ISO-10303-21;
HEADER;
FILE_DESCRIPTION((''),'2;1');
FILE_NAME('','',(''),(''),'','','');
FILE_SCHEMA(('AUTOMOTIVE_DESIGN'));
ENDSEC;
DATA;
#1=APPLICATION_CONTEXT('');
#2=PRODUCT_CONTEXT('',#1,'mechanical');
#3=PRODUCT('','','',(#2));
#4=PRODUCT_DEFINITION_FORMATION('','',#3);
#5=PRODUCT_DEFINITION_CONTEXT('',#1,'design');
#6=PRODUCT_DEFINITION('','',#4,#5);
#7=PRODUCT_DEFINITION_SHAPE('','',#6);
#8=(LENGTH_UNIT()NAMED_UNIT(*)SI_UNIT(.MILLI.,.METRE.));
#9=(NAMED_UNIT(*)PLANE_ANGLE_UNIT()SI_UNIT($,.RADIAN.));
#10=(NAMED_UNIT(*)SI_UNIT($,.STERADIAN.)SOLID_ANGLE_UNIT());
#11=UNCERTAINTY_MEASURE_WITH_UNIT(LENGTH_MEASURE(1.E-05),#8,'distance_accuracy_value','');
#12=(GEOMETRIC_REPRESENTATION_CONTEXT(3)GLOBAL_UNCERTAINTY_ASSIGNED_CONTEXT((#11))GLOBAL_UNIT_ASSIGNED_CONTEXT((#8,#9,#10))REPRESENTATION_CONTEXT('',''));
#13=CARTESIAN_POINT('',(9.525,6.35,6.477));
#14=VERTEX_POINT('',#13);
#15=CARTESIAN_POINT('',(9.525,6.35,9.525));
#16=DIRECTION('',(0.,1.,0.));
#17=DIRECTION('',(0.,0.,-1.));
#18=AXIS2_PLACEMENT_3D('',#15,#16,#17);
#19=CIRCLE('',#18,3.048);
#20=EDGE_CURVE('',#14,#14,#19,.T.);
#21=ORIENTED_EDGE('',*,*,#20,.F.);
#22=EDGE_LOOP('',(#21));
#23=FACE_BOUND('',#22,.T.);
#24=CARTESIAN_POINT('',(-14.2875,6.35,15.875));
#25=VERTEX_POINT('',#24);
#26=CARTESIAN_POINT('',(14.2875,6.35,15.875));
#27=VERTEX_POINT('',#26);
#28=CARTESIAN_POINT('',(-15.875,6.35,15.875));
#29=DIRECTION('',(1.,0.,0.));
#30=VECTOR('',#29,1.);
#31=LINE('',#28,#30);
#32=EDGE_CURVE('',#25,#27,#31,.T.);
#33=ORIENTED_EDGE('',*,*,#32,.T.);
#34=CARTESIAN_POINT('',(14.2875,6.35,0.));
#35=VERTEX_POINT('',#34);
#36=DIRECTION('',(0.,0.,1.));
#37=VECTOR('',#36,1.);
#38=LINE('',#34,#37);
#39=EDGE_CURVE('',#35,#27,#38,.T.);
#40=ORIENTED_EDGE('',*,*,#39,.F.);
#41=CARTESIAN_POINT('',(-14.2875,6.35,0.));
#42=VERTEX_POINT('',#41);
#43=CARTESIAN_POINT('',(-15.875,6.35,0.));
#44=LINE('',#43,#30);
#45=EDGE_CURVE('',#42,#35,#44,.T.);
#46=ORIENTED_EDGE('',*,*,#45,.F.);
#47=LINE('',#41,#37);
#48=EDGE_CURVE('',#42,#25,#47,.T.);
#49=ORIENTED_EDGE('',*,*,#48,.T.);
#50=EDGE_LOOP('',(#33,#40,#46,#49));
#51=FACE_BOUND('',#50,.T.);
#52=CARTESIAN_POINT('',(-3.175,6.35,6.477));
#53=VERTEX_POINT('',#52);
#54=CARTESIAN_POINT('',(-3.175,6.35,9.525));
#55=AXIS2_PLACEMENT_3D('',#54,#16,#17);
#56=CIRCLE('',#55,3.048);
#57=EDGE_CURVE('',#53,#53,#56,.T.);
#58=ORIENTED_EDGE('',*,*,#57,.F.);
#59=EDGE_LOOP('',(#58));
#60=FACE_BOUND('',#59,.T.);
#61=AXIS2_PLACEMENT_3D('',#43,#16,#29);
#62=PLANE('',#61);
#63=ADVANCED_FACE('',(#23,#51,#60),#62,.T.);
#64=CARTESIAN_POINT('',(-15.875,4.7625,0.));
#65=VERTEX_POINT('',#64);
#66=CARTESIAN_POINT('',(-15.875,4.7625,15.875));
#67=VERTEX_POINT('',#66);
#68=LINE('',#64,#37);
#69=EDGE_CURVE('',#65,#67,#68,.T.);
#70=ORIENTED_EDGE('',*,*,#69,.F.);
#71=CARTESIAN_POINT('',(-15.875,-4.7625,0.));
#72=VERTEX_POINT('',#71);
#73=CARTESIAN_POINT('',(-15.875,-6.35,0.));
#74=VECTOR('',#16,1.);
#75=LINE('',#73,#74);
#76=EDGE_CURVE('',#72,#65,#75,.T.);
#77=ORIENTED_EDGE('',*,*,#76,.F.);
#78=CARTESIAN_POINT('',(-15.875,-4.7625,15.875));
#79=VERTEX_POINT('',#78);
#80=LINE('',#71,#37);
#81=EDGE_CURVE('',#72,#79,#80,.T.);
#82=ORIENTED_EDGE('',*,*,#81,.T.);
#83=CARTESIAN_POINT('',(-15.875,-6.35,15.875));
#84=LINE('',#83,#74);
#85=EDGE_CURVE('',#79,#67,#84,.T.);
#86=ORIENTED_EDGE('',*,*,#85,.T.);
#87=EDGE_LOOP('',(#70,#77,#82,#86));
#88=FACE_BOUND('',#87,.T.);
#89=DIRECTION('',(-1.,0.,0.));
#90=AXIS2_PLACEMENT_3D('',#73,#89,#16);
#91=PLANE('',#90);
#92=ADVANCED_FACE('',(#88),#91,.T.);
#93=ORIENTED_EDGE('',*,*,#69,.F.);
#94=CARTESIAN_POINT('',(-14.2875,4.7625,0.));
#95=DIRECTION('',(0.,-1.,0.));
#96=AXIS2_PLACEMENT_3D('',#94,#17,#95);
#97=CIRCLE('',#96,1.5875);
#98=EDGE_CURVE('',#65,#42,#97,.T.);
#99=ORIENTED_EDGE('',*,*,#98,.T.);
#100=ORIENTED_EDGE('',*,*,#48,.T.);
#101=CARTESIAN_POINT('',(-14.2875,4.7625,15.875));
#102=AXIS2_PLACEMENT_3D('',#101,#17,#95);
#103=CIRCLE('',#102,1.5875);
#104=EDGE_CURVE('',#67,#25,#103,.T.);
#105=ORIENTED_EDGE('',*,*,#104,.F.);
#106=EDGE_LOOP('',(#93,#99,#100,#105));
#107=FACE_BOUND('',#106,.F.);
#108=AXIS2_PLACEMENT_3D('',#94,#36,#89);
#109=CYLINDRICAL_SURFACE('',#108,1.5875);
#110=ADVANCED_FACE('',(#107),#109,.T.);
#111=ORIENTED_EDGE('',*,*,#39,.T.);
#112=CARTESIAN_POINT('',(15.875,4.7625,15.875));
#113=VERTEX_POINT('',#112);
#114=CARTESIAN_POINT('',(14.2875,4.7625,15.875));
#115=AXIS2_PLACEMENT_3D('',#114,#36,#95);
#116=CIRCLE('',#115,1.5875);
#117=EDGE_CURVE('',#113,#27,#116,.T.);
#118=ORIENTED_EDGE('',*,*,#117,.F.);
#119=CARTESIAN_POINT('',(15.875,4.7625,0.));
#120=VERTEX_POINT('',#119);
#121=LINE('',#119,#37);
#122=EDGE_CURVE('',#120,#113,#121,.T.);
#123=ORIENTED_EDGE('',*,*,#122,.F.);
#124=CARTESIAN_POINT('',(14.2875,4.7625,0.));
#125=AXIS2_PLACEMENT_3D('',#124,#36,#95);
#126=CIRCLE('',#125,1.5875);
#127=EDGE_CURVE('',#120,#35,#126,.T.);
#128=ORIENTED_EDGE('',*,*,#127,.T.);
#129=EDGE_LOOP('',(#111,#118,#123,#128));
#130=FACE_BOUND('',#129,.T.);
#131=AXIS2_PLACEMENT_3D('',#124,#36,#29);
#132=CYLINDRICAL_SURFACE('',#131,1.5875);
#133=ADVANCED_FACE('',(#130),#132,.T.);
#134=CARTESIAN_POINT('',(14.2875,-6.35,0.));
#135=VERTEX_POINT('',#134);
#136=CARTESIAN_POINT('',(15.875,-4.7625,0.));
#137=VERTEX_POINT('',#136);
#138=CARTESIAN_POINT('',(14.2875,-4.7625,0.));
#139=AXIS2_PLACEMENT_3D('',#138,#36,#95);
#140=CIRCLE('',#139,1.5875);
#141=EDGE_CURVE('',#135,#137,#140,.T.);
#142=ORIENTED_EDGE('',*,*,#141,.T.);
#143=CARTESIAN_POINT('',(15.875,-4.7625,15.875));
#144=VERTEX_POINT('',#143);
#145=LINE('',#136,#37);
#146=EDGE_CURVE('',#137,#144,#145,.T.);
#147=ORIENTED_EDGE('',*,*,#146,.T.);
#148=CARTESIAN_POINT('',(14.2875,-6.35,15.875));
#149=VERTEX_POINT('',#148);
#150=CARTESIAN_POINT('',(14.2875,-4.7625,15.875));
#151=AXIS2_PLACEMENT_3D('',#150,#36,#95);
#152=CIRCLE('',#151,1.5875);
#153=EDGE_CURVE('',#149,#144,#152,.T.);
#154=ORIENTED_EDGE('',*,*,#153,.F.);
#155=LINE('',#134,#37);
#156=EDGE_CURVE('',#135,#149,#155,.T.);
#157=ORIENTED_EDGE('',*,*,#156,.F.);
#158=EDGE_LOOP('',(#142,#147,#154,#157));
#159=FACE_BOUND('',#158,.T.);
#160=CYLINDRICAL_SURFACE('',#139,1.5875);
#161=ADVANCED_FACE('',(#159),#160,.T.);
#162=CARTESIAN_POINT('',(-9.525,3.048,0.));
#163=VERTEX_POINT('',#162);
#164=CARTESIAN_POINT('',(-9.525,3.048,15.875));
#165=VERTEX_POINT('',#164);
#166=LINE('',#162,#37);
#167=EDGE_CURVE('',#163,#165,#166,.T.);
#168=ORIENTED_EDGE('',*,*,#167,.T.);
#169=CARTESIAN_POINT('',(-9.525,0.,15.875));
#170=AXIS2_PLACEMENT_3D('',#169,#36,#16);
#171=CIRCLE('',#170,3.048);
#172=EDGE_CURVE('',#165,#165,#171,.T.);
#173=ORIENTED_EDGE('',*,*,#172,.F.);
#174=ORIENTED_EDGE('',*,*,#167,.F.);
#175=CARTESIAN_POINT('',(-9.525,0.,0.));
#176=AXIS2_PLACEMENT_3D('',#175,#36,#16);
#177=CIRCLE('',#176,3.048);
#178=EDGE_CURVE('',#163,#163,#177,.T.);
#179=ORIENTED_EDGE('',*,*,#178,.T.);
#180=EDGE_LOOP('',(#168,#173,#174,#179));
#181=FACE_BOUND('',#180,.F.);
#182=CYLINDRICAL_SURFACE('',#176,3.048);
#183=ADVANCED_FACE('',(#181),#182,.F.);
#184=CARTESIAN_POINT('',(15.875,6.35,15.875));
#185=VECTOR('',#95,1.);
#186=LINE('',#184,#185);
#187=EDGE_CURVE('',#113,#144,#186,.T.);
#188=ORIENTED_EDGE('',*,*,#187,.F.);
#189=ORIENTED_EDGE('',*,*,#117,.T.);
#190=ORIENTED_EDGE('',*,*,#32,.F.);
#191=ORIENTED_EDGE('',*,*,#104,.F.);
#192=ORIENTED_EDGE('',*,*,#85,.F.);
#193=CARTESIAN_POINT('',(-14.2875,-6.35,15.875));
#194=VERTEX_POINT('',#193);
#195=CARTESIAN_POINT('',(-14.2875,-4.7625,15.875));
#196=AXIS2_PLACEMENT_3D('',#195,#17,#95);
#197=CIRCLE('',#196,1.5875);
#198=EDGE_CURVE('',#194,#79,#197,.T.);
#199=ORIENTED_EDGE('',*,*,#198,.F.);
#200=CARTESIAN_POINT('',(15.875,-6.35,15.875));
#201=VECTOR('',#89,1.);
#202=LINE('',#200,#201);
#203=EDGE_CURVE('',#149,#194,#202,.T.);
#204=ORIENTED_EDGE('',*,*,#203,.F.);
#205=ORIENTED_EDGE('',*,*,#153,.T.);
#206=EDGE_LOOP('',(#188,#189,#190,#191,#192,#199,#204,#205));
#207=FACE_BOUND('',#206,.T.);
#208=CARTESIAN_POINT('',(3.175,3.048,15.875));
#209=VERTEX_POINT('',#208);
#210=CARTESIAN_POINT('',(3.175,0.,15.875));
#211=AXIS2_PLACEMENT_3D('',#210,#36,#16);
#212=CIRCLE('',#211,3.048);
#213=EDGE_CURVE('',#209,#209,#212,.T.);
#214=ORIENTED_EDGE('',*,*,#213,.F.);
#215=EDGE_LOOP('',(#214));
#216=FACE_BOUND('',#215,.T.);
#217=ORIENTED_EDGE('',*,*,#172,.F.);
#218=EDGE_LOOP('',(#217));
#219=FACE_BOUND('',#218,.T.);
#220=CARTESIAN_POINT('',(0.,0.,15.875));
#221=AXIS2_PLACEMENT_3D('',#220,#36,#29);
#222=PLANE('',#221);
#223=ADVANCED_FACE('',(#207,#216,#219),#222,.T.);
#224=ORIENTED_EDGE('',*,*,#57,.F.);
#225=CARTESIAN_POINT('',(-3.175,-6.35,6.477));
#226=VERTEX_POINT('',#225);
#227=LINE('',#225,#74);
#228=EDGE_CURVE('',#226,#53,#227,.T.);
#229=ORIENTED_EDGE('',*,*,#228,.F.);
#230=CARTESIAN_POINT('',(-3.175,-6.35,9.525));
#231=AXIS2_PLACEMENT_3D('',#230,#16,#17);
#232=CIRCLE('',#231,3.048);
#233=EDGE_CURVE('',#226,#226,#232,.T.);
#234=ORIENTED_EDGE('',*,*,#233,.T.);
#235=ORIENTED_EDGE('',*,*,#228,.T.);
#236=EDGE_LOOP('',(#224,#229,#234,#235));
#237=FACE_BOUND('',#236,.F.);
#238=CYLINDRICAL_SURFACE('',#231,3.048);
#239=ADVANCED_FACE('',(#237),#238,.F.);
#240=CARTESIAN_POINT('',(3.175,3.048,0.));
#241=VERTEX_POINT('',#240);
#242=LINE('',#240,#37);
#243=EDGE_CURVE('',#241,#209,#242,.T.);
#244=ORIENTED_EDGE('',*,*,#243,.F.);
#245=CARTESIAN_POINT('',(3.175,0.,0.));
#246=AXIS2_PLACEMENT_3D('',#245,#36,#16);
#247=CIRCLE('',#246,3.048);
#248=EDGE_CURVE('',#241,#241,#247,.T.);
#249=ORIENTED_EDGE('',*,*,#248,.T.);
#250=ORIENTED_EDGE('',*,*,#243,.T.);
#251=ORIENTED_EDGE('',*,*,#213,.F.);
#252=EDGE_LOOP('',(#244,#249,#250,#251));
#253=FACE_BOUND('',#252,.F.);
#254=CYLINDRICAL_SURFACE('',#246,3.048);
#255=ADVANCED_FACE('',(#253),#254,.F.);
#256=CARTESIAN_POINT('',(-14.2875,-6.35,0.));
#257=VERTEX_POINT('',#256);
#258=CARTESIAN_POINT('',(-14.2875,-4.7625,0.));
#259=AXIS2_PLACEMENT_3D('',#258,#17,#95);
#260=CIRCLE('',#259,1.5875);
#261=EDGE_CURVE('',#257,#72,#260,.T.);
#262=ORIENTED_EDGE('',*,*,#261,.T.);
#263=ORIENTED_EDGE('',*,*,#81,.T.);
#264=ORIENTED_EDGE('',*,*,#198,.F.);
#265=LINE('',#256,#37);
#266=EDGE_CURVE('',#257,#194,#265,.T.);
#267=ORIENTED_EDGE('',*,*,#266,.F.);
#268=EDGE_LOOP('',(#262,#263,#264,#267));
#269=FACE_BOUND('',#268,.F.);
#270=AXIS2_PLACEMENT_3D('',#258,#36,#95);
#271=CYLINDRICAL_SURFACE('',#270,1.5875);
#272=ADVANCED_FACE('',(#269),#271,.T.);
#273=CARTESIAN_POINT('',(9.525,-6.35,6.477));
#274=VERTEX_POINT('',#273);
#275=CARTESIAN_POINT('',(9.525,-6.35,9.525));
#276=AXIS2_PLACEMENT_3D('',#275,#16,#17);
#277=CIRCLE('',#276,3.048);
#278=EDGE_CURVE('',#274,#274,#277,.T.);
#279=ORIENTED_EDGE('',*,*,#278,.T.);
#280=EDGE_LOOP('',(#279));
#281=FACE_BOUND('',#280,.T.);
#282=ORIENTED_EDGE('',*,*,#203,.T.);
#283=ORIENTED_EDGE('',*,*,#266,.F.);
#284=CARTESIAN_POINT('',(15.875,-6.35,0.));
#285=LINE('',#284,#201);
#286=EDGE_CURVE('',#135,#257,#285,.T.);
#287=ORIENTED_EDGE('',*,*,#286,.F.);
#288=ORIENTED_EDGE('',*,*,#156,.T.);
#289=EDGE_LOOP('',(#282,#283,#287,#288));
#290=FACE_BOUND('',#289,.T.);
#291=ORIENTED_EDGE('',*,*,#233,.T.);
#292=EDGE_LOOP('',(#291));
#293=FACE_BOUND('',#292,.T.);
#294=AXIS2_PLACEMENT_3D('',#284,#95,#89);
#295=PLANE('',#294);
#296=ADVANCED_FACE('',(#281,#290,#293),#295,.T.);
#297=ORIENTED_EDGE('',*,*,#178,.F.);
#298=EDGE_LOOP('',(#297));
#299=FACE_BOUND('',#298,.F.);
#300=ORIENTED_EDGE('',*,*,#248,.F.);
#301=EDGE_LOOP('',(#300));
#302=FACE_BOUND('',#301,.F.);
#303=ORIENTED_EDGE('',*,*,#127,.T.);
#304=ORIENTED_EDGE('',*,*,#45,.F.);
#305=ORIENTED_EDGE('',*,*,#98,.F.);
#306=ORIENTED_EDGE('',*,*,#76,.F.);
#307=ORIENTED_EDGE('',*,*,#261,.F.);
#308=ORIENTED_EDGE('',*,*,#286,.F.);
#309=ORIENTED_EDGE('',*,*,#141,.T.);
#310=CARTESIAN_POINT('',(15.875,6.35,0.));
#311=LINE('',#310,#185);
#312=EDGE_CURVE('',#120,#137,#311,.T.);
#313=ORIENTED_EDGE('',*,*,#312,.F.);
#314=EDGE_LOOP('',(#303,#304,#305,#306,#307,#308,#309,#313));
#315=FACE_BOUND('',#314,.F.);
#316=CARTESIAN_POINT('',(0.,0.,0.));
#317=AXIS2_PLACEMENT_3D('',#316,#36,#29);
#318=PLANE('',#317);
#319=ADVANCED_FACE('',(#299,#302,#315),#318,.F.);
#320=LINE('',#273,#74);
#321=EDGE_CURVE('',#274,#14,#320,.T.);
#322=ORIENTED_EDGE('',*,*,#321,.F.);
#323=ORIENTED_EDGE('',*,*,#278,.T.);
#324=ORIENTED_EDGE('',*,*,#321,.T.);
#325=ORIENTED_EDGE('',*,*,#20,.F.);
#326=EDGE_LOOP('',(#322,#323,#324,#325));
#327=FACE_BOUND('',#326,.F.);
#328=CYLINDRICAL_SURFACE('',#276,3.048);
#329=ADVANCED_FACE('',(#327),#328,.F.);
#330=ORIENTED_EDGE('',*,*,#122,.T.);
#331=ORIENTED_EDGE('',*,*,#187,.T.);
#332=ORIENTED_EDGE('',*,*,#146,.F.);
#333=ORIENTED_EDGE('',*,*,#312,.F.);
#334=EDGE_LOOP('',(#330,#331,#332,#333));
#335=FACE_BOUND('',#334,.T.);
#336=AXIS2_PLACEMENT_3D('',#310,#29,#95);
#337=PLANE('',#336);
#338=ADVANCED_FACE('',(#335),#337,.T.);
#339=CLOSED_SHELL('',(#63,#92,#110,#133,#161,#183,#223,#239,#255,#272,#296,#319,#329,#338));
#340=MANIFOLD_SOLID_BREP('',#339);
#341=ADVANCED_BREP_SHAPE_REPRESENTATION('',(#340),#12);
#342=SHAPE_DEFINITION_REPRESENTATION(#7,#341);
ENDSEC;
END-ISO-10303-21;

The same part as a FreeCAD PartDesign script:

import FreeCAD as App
import Part
import Sketcher

V = App.Vector
Q = App.Units.Quantity


def edges_at(feature, points):
    """Names of the edges that pass closest to the given points."""
    edges = feature.Shape.Edges
    near = lambda p: min(range(len(edges)), key=lambda i: edges[i].distToShape(Part.Vertex(*p))[0])
    return sorted({f"Edge{near(p) + 1}" for p in points})

doc = App.newDocument("Part")
params = doc.addObject("Spreadsheet::Sheet", "Params")
for row, (alias, value) in enumerate([
    ("sketch1_height", "0.5 in"),
    ("sketch1_width", "1.25 in"),
    ("pad1_length", "0.625 in"),
    ("sketch2_diameter", "0.24 in"),
    ("hole_diameter", "0.24 in"),
    ("sketch3_diameter", "0.24 in"),
    ("hole2_diameter", "0.24 in"),
    ("fillet_radius", "0.0625 in"),
], start=1):
    params.set(f"A{row}", alias)
    params.set(f"B{row}", "=" + value)
    params.setAlias(f"B{row}", alias)

body = doc.addObject("PartDesign::Body", "Body")

sketch1 = body.newObject("Sketcher::SketchObject", "Sketch")
sketch1.AttachmentSupport = (doc.getObject("XY_Plane"), [""])
sketch1.MapMode = "FlatFace"
sketch1.addGeometry(Part.LineSegment(V(-16, -6, 0), V(16, -6, 0)), False)
sketch1.addGeometry(Part.LineSegment(V(16, -6, 0), V(16, 6, 0)), False)
sketch1.addGeometry(Part.LineSegment(V(16, 6, 0), V(-16, 6, 0)), False)
sketch1.addGeometry(Part.LineSegment(V(-16, 6, 0), V(-16, -6, 0)), False)
sketch1.addConstraint(Sketcher.Constraint("Coincident", 0, 2, 1, 1))
sketch1.addConstraint(Sketcher.Constraint("Coincident", 1, 2, 2, 1))
sketch1.addConstraint(Sketcher.Constraint("Coincident", 2, 2, 3, 1))
sketch1.addConstraint(Sketcher.Constraint("Coincident", 3, 2, 0, 1))
sketch1.addConstraint(Sketcher.Constraint("Horizontal", 0))
sketch1.addConstraint(Sketcher.Constraint("Vertical", 1))
sketch1.addConstraint(Sketcher.Constraint("Horizontal", 2))
sketch1.addConstraint(Sketcher.Constraint("Vertical", 3))
sketch1.addConstraint(Sketcher.Constraint("Symmetric", 0, 2, 2, 2, -1, 1))
sketch1.addConstraint(Sketcher.Constraint("DistanceY", 1, 1, 1, 2, Q("0.5 in")))
sketch1.addConstraint(Sketcher.Constraint("DistanceX", 0, 1, 0, 2, Q("1.25 in")))
sketch1.setExpression("Constraints[9]", "Params.sketch1_height")
sketch1.setExpression("Constraints[10]", "Params.sketch1_width")
pad1 = body.newObject("PartDesign::Pad", "Pad")
pad1.Profile = sketch1
pad1.setExpression("Length", "Params.pad1_length")

sketch2 = body.newObject("Sketcher::SketchObject", "Sketch001")
sketch2.AttachmentSupport = (doc.getObject("XY_Plane"), [""])
sketch2.MapMode = "FlatFace"
sketch2.addGeometry(Part.Circle(V(-9.5, 0, 0), V(0, 0, 1), 3), False)
sketch2.addGeometry(Part.Circle(V(3.2, 0, 0), V(0, 0, 1), 3), False)
sketch2.addConstraint(Sketcher.Constraint("Equal", 0, 1))
sketch2.addConstraint(Sketcher.Constraint("PointOnObject", 0, 3, -1))
sketch2.addConstraint(Sketcher.Constraint("PointOnObject", 1, 3, -1))
sketch2.addConstraint(Sketcher.Constraint("Diameter", 0, Q("0.24 in")))
sketch2.addConstraint(Sketcher.Constraint("DistanceX", 0, 3, 1, 3, Q("0.5 in")))
sketch2.addConstraint(Sketcher.Constraint("DistanceX", 0, 3, -1, 1, Q("0.375 in")))
sketch2.setExpression("Constraints[3]", "Params.sketch2_diameter")
doc.recompute()
hole = body.newObject("PartDesign::Hole", "Hole")
hole.Profile = sketch2
hole.ThreadType = "None"
hole.setExpression("Diameter", "Params.hole_diameter")
hole.DepthType = "ThroughAll"
hole.Reversed = True

sketch3 = body.newObject("Sketcher::SketchObject", "Sketch002")
sketch3.AttachmentSupport = (doc.getObject("XZ_Plane"), [""])
sketch3.MapMode = "FlatFace"
sketch3.AttachmentOffset = App.Placement(V(0, 0, 0.25 * 25.4), App.Rotation())
sketch3.addGeometry(Part.Circle(V(-3.2, 9.5, 0), V(0, 0, 1), 3), False)
sketch3.addGeometry(Part.Circle(V(9.5, 9.5, 0), V(0, 0, 1), 3), False)
sketch3.addConstraint(Sketcher.Constraint("Equal", 0, 1))
sketch3.addConstraint(Sketcher.Constraint("Horizontal", 0, 3, 1, 3))
sketch3.addConstraint(Sketcher.Constraint("Diameter", 0, Q("0.24 in")))
sketch3.addConstraint(Sketcher.Constraint("DistanceX", 0, 3, 1, 3, Q("0.5 in")))
sketch3.addConstraint(Sketcher.Constraint("DistanceX", 0, 3, -1, 1, Q("0.125 in")))
sketch3.addConstraint(Sketcher.Constraint("DistanceY", -1, 1, 0, 3, Q("0.375 in")))
sketch3.setExpression("Constraints[2]", "Params.sketch3_diameter")
doc.recompute()
hole2 = body.newObject("PartDesign::Hole", "Hole001")
hole2.Profile = sketch3
hole2.ThreadType = "None"
hole2.setExpression("Diameter", "Params.hole2_diameter")
hole2.DepthType = "ThroughAll"
doc.recompute()

fillet = body.newObject("PartDesign::Fillet", "Fillet")
fillet.Base = (hole2, edges_at(hole2, [
    (-15.875, -6.35, 7.938),
    (-15.875, 6.35, 7.938),
    (15.875, -6.35, 7.938),
    (15.875, 6.35, 7.938),
]))
fillet.setExpression("Radius", "Params.fillet_radius")

doc.recompute()
